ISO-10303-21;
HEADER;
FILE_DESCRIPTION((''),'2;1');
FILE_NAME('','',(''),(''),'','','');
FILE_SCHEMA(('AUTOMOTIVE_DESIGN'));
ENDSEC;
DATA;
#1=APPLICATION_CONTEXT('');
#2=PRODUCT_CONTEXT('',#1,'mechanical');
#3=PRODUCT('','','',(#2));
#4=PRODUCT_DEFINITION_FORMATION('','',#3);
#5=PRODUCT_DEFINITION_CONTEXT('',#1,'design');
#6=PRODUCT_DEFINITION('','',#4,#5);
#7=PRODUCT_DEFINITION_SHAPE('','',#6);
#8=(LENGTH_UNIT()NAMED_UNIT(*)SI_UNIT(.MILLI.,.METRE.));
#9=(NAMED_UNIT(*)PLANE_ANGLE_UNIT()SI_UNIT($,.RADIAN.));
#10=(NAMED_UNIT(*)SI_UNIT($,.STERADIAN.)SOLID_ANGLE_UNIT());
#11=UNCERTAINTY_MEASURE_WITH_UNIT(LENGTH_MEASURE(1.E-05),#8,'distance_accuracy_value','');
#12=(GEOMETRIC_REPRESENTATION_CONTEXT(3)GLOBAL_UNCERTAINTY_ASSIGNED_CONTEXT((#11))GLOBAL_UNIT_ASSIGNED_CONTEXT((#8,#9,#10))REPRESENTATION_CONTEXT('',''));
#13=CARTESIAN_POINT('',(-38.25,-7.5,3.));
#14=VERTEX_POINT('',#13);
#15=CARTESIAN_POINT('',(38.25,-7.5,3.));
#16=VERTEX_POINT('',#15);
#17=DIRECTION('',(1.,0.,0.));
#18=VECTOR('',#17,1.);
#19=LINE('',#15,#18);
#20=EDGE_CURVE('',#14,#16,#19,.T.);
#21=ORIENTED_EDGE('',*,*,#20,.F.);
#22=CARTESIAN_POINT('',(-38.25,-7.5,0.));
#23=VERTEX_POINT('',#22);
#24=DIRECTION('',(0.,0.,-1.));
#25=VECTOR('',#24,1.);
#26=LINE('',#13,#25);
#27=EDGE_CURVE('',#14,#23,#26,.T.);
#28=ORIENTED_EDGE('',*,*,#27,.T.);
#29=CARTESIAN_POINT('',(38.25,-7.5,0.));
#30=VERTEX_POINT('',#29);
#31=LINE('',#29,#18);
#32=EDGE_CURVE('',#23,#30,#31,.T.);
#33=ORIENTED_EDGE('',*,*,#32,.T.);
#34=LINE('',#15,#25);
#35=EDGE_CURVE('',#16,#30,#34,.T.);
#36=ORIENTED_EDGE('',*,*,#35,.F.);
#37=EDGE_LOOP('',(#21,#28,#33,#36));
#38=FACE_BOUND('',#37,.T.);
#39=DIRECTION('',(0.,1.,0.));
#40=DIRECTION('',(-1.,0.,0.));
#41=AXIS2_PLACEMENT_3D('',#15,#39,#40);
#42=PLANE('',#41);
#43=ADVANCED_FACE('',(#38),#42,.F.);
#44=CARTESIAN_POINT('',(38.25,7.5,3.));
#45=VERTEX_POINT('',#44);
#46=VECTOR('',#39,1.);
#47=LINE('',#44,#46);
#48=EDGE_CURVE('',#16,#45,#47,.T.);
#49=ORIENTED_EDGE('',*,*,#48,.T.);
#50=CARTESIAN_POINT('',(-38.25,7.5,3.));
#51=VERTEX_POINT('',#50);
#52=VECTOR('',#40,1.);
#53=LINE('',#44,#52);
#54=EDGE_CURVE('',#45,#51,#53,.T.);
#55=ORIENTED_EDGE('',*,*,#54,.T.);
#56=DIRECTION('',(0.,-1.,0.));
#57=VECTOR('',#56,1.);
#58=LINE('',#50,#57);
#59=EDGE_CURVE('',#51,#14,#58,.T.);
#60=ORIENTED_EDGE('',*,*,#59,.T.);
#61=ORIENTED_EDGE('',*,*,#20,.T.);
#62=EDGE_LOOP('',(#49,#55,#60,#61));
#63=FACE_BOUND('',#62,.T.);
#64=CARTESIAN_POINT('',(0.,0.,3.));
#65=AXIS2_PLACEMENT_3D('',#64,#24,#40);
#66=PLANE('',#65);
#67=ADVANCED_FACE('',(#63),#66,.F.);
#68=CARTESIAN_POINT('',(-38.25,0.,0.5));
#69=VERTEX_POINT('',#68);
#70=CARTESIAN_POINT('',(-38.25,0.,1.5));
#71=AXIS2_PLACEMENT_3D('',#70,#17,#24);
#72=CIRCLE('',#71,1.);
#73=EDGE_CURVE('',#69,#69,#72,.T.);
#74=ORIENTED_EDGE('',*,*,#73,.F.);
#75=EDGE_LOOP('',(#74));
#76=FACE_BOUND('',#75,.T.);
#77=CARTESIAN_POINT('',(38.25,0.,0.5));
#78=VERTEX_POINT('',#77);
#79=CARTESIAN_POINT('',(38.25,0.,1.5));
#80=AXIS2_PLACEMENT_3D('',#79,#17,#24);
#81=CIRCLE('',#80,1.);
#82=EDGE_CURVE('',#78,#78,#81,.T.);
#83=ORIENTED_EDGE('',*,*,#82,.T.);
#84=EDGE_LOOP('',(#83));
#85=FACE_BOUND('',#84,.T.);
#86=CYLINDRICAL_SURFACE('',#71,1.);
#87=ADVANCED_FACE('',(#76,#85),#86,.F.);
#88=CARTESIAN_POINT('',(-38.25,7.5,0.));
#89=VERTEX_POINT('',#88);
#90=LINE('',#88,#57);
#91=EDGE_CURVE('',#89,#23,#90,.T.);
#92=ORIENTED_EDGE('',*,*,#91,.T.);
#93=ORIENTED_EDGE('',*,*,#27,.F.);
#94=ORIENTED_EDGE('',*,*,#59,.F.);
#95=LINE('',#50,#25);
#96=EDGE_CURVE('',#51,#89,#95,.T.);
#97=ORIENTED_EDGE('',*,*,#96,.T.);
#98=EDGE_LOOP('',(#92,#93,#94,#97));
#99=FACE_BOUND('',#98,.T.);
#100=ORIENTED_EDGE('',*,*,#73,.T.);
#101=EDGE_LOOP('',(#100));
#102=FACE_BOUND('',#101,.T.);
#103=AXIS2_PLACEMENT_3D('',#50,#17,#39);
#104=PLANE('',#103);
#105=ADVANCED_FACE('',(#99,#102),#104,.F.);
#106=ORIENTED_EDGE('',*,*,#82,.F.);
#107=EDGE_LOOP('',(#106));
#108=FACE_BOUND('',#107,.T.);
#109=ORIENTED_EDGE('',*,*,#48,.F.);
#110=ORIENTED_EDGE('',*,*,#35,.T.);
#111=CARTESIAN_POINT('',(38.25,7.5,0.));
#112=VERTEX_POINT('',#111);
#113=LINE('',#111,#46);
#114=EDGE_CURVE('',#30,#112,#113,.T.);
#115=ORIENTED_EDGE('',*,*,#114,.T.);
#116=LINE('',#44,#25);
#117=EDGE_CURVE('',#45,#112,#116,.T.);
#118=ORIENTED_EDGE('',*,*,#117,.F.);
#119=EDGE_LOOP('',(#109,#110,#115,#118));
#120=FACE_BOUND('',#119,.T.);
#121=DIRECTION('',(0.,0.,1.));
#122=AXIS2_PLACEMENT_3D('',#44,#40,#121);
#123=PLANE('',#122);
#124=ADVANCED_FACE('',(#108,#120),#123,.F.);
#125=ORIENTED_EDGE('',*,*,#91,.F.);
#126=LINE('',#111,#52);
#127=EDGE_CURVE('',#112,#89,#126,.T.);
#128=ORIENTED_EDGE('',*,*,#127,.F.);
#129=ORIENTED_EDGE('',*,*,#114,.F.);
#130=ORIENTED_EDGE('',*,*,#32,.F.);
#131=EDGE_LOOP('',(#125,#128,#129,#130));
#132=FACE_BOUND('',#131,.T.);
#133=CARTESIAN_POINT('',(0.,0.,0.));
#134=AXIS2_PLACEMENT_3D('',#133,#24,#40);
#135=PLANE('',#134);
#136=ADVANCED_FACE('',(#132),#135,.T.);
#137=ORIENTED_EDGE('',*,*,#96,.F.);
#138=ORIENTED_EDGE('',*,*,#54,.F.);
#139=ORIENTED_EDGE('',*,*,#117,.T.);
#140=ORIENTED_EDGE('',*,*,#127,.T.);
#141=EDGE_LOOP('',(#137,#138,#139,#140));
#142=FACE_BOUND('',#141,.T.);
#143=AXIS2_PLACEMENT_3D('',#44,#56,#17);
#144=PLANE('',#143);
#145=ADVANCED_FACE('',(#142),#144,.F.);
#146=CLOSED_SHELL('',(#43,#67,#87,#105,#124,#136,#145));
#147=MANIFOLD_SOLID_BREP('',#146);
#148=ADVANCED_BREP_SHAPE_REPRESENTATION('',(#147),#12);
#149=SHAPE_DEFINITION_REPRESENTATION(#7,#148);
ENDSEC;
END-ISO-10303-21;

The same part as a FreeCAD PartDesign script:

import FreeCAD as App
import Part
import Sketcher
Q = App.Units.Quantity


def add_polygon(sketch, points):
    """Adds a closed chain of lines whose ends are joined by coincident constraints."""
    first, n = sketch.GeometryCount, len(points)
    for a, b in zip(points, points[1:] + points[:1]):
        sketch.addGeometry(Part.LineSegment(App.Vector(*a, 0), App.Vector(*b, 0)), False)
    for i in range(n):
        sketch.addConstraint(Sketcher.Constraint("Coincident", first + i, 2, first + (i + 1) % n, 1))

doc = App.newDocument("Part")
body = doc.addObject("PartDesign::Body", "Body")

# Sketch on XY plane
sketch1 = body.newObject("Sketcher::SketchObject", "Sketch")
sketch1.AttachmentSupport = (doc.getObject("XY_Plane"), [""])
sketch1.MapMode = "FlatFace"
add_polygon(sketch1, [(-38, 8), (-38, -8), (38, -8), (38, 8)])  # lines 0-3
sketch1.addConstraint([
    Sketcher.Constraint("Vertical", 0),
    Sketcher.Constraint("Horizontal", 1),
    Sketcher.Constraint("Vertical", 2),
    Sketcher.Constraint("Horizontal", 3),
    Sketcher.Constraint("Symmetric", 0, 2, 2, 2, -1, 1),
    Sketcher.Constraint("DistanceY", 0, 2, 0, 1, Q("15 mm")),
    Sketcher.Constraint("DistanceX", 1, 1, 1, 2, Q("76.5 mm")),
])
pad1 = body.newObject("PartDesign::Pad", "Pad")
pad1.Profile = sketch1
pad1.Length = 3

# Sketch on YZ plane
sketch2 = body.newObject("Sketcher::SketchObject", "Sketch001")
sketch2.AttachmentSupport = (doc.getObject("YZ_Plane"), [""])
sketch2.MapMode = "FlatFace"
sketch2.AttachmentOffset = App.Placement(App.Vector(0, 0, 38.25), App.Rotation())
sketch2.addGeometry(Part.Circle(App.Vector(0, 1.5, 0), App.Vector(0, 0, 1), 1), False)
sketch2.addConstraint([
    Sketcher.Constraint("PointOnObject", 0, 3, -2),
    Sketcher.Constraint("Diameter", 0, Q("2 mm")),
    Sketcher.Constraint("DistanceY", -1, 1, 0, 3, Q("1.5 mm")),
])
pocket1 = body.newObject("PartDesign::Pocket", "Pocket")
pocket1.Profile = sketch2
pocket1.Type = "ThroughAll"

doc.recompute()
